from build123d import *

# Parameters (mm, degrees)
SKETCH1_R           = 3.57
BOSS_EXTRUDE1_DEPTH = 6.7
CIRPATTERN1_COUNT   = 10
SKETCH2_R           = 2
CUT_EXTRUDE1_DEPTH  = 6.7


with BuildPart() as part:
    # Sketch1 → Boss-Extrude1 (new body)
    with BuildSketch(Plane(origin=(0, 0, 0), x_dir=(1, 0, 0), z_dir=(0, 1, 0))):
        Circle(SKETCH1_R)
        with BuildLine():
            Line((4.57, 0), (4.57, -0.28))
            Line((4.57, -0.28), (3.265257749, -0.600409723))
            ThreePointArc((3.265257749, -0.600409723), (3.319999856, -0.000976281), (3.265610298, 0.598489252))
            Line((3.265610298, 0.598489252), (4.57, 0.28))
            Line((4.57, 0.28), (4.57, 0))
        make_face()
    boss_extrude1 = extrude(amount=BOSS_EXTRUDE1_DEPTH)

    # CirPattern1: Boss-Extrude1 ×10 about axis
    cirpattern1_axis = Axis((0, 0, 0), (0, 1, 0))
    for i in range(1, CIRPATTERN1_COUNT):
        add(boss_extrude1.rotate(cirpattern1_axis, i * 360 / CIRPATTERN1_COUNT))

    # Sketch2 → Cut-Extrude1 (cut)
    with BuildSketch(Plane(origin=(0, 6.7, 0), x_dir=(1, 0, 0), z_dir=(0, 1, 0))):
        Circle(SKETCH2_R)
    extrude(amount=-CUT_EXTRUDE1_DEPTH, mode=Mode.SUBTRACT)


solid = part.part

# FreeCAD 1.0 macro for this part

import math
import FreeCAD as App
import Part
import Sketcher

V = App.Vector
Q = App.Units.Quantity

doc = App.newDocument("Part")
body = doc.addObject("PartDesign::Body", "Body")

# Sketch on XZ plane
sketch1 = body.newObject("Sketcher::SketchObject", "Sketch")
sketch1.AttachmentSupport = (doc.getObject("XZ_Plane"), [""])
sketch1.MapMode = "FlatFace"
sketch1.addGeometry(Part.LineSegment(V(4.6, 0.3, 0), V(4.6, -0.3, 0)), False)
sketch1.addGeometry(Part.LineSegment(V(4.6, -0.3, 0), V(3.5, -0.5, 0)), False)
sketch1.addGeometry(Part.ArcOfCircle(Part.Circle(V(0, 0, 0), V(0, 0, 1), 3.6), math.radians(9), math.radians(351)), False)
sketch1.addGeometry(Part.LineSegment(V(3.5, 0.5, 0), V(4.6, 0.3, 0)), False)
sketch1.addConstraint(Sketcher.Constraint("Coincident", 0, 2, 1, 1))
sketch1.addConstraint(Sketcher.Constraint("Coincident", 1, 2, 2, 2))
sketch1.addConstraint(Sketcher.Constraint("Coincident", 2, 1, 3, 1))
sketch1.addConstraint(Sketcher.Constraint("Coincident", 3, 2, 0, 1))
sketch1.addConstraint(Sketcher.Constraint("Vertical", 0))
sketch1.addConstraint(Sketcher.Constraint("Coincident", 2, 3, -1, 1))
sketch1.addConstraint(Sketcher.Constraint("Radius", 2, Q("3.57 mm")))
sketch1.addConstraint(Sketcher.Constraint("DistanceY", 0, 2, 0, 1, Q("0.56 mm")))
sketch1.addConstraint(Sketcher.Constraint("DistanceX", -1, 1, 0, 2, Q("4.57 mm")))
sketch1.addConstraint(Sketcher.Constraint("DistanceY", 0, 2, -1, 1, Q("0.28 mm")))
sketch1.addConstraint(Sketcher.Constraint("Distance", 3, Q("1.071302 mm")))
sketch1.addConstraint(Sketcher.Constraint("DistanceX", -1, 1, 1, 2, Q("3.52984 mm")))
pad1 = body.newObject("PartDesign::Pad", "Pad")
pad1.Profile = sketch1
pad1.Length = 6.7
pad1.Reversed = True
doc.recompute()

polarpattern = body.newObject("PartDesign::PolarPattern", "PolarPattern")
polarpattern.Originals = [pad1]
polarpattern.Axis = (doc.getObject("Y_Axis"), [""])
polarpattern.Angle = 360
polarpattern.Occurrences = 10
body.Tip = polarpattern

# Sketch on XZ plane
sketch2 = body.newObject("Sketcher::SketchObject", "Sketch001")
sketch2.AttachmentSupport = (doc.getObject("XZ_Plane"), [""])
sketch2.MapMode = "FlatFace"
sketch2.AttachmentOffset = App.Placement(V(0, 0, -6.7), App.Rotation())
sketch2.addGeometry(Part.Circle(V(0, 0, 0), V(0, 0, 1), 2), False)
sketch2.addConstraint(Sketcher.Constraint("Coincident", 0, 3, -1, 1))
sketch2.addConstraint(Sketcher.Constraint("Diameter", 0, Q("4 mm")))
pocket1 = body.newObject("PartDesign::Pocket", "Pocket")
pocket1.Profile = sketch2
pocket1.Length = 6.7
pocket1.Reversed = True

doc.recompute()
